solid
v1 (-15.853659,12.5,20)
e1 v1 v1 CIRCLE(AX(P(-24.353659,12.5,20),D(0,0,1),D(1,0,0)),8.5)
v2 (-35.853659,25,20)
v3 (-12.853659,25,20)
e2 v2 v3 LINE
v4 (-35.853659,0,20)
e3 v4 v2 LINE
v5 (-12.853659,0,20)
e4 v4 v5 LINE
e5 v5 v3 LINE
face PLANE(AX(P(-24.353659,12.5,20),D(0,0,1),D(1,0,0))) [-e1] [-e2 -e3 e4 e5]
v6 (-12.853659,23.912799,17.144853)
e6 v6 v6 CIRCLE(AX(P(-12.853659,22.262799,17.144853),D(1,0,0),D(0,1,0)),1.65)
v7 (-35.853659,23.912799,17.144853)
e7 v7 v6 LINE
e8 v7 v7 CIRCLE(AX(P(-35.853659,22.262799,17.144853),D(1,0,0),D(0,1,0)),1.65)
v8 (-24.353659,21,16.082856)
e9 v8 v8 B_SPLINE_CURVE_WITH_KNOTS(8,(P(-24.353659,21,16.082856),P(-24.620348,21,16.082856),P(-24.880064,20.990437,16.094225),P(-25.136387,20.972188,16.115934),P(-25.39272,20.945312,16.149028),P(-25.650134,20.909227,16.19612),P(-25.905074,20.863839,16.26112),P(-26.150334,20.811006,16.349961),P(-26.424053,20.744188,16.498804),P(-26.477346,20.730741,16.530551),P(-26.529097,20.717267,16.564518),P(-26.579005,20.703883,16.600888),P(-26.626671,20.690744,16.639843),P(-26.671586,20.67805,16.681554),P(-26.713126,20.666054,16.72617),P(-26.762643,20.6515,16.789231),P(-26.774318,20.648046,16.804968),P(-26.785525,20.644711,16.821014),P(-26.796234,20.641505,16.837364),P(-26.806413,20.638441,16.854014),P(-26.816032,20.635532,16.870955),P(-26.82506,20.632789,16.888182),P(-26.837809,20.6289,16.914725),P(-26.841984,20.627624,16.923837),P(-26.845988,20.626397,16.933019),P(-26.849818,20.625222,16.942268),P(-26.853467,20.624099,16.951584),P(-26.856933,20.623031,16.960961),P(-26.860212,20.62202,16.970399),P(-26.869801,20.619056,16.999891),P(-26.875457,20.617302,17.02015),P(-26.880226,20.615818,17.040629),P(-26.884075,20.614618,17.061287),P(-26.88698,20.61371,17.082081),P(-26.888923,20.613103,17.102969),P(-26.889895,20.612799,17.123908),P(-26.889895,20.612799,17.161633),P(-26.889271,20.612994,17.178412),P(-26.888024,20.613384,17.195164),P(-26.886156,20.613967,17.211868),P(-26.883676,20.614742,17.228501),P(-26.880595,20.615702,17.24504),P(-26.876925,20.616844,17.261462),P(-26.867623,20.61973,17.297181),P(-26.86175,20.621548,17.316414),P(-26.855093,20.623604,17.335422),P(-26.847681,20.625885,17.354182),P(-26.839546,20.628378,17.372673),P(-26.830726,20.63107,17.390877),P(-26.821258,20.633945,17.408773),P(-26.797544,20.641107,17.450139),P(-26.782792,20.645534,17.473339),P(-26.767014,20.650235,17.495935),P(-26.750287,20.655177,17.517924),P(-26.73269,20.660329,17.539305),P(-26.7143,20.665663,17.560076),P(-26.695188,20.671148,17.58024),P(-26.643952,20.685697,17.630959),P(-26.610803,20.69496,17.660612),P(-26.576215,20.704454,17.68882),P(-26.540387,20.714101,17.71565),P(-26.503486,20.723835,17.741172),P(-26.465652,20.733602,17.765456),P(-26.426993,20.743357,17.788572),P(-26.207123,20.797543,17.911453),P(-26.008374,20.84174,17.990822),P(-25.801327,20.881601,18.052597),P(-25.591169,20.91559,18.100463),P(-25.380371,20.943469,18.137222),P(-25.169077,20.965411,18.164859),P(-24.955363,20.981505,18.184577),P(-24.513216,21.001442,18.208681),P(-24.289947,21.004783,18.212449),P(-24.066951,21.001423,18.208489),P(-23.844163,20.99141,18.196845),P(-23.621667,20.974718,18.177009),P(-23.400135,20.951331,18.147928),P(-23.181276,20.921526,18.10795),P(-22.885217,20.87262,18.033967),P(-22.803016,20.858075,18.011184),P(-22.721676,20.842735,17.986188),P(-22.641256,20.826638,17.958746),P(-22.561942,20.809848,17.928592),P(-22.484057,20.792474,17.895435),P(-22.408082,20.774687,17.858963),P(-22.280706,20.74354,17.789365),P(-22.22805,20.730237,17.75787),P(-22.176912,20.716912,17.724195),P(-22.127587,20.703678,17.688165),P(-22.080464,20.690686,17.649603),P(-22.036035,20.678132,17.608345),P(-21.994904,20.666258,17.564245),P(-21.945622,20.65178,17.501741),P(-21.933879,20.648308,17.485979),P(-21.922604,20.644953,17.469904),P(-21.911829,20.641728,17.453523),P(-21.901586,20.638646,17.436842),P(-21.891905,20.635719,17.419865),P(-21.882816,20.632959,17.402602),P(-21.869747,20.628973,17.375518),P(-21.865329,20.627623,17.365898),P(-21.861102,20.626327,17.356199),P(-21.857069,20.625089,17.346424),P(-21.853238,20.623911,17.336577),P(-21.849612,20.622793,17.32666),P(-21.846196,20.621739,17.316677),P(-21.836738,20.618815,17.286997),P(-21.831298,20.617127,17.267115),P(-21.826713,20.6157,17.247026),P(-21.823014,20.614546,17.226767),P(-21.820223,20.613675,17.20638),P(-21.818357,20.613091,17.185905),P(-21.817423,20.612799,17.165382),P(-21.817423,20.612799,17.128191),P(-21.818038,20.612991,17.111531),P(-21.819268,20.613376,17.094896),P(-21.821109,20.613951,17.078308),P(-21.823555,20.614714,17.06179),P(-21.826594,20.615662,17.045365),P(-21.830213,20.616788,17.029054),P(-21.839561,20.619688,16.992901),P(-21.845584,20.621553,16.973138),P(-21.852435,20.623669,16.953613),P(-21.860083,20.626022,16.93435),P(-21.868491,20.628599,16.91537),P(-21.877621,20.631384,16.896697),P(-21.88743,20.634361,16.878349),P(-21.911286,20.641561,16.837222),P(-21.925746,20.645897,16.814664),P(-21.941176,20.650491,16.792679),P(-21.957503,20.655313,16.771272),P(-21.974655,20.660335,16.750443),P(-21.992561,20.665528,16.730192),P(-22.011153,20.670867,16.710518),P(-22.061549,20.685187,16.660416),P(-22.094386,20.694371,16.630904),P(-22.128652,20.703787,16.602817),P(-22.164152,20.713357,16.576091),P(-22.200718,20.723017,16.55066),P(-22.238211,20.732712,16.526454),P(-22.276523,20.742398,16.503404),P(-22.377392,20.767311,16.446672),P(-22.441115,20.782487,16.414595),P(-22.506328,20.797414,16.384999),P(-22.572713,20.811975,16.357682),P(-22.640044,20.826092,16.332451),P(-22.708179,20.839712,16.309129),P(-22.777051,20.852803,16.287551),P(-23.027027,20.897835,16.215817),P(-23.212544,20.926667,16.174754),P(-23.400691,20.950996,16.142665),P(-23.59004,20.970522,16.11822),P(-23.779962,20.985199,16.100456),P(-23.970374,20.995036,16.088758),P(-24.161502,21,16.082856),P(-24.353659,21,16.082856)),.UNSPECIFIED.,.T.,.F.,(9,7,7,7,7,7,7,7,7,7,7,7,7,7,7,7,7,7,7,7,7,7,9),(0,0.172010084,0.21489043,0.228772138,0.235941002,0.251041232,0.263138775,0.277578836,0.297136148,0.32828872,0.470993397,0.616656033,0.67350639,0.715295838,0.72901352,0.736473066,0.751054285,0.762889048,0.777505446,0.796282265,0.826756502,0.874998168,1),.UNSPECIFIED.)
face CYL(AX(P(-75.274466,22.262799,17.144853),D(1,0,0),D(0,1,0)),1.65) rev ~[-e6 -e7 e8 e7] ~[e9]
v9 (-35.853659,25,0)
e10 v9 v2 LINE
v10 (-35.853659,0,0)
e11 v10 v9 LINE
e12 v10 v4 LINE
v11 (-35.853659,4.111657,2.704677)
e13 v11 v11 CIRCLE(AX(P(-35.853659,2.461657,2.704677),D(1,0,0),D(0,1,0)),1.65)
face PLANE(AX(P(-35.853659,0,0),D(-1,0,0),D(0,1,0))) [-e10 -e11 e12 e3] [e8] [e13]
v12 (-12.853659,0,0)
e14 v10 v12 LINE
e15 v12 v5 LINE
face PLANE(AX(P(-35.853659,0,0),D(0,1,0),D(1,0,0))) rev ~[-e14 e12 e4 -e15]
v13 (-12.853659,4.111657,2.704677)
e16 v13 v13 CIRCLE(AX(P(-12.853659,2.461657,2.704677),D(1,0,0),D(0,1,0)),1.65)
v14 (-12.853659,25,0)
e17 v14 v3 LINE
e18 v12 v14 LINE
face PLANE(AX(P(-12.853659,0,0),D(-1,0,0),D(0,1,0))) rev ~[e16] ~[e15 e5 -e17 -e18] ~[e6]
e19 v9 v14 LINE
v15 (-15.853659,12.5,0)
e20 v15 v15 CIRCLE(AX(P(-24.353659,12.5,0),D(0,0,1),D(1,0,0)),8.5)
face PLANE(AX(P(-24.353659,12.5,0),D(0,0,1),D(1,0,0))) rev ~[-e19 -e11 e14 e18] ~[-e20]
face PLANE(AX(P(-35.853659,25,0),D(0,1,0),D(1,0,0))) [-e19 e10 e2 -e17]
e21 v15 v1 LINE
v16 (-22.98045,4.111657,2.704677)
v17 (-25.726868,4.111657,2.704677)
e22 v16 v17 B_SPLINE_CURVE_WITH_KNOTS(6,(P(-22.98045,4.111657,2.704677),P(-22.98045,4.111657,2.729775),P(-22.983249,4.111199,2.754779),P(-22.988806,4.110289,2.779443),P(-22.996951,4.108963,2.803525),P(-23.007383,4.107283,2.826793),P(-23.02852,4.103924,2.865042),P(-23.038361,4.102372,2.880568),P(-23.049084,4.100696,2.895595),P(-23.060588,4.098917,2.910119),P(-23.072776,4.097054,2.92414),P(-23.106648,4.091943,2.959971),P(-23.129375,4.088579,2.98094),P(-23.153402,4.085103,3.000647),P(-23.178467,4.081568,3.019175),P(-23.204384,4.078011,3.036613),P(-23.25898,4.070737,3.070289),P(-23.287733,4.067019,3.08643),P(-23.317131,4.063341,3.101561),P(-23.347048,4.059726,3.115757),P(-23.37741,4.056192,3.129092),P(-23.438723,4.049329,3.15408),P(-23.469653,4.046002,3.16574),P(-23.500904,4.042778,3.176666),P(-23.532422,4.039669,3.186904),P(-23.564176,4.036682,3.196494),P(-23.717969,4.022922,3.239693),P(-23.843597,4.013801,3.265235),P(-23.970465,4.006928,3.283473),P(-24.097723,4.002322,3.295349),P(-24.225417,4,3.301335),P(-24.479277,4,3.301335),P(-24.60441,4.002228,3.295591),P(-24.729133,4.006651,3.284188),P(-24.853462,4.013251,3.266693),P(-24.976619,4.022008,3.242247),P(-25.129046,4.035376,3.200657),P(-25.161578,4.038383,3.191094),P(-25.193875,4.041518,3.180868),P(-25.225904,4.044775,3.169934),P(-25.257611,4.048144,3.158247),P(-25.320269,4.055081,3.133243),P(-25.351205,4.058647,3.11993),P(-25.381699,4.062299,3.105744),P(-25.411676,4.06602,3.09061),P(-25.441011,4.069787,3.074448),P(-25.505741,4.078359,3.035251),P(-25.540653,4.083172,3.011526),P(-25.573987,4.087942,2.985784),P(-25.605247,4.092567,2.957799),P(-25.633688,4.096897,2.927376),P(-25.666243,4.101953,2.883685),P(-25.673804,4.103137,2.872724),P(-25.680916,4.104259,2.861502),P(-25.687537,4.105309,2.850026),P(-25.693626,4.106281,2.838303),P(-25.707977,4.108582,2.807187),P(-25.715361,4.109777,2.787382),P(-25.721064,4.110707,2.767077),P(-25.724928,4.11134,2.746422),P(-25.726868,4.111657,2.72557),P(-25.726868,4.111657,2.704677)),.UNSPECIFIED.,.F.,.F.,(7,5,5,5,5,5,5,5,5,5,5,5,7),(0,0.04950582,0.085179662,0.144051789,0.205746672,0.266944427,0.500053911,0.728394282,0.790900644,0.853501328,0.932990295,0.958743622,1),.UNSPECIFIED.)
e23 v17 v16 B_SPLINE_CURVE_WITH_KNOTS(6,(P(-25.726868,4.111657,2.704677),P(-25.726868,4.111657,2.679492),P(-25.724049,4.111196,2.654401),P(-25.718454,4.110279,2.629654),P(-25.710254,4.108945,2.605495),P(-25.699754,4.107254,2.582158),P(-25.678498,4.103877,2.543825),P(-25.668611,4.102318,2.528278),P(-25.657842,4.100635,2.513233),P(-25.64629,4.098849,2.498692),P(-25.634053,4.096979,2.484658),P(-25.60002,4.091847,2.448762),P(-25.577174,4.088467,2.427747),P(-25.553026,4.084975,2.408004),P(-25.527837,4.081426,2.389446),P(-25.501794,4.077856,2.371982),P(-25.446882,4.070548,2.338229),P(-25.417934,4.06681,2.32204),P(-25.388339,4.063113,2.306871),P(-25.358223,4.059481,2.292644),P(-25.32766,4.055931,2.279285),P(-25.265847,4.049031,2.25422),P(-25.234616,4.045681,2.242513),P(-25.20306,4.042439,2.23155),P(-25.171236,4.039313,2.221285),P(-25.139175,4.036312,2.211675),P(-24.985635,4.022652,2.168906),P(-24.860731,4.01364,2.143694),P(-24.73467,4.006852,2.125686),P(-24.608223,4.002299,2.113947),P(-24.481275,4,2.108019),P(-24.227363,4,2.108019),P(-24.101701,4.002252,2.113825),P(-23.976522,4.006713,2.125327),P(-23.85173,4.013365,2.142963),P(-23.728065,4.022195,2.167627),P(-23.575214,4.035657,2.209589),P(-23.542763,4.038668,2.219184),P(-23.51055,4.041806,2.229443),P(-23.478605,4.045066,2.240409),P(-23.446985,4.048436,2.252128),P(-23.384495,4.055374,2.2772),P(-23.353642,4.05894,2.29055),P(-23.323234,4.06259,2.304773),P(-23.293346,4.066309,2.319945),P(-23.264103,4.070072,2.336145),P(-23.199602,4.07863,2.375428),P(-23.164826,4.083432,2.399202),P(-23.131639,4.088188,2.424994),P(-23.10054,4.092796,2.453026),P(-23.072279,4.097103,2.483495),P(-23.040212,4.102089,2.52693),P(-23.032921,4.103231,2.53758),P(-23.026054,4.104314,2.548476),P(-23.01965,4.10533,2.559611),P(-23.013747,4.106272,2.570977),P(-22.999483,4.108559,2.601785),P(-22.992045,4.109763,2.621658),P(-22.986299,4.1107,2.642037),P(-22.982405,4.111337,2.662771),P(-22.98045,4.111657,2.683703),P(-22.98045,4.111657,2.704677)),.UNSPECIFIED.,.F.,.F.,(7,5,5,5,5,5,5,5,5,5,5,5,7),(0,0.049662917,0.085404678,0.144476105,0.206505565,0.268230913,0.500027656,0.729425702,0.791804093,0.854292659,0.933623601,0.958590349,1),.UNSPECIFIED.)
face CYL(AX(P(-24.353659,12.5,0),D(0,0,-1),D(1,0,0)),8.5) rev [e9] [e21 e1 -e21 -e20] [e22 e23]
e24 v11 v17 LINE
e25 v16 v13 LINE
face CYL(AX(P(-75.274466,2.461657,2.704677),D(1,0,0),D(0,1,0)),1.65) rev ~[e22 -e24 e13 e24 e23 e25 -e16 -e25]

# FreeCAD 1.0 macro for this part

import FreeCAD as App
import Part
import Sketcher

V = App.Vector

doc = App.newDocument("Part")
body = doc.addObject("PartDesign::Body", "Body")

# Sketch on XY plane
sketch1 = body.newObject("Sketcher::SketchObject", "Sketch")
sketch1.AttachmentSupport = (doc.getObject("XY_Plane"), [""])
sketch1.MapMode = "FlatFace"
sketch1.addGeometry([
    Part.LineSegment(V(-36, 25, 0), V(-36, 0, 0)),  # 0
    Part.LineSegment(V(-36, 0, 0), V(-13, 0, 0)),  # 1
    Part.LineSegment(V(-13, 0, 0), V(-13, 25, 0)),  # 2
    Part.LineSegment(V(-13, 25, 0), V(-36, 25, 0)),  # 3
    Part.Circle(V(-24, 12, 0), V(0, 0, 1), 8),  # 4
], False)
sketch1.addConstraint([
    Sketcher.Constraint("Coincident", 0, 2, 1, 1),
    Sketcher.Constraint("Coincident", 1, 2, 2, 1),
    Sketcher.Constraint("Coincident", 2, 2, 3, 1),
    Sketcher.Constraint("Coincident", 3, 2, 0, 1),
    Sketcher.Constraint("Vertical", 0),
    Sketcher.Constraint("Horizontal", 1),
    Sketcher.Constraint("Vertical", 2),
    Sketcher.Constraint("Horizontal", 3),
    Sketcher.Constraint("PointOnObject", 0, 2, -1),
    Sketcher.Constraint("Diameter", 4, 17.0),
    Sketcher.Constraint("DistanceX", 1, 1, 1, 2, 23.0),
    Sketcher.Constraint("DistanceY", 0, 2, 0, 1, 25.0),
    Sketcher.Constraint("DistanceY", -1, 1, 4, 3, 12.5),
    Sketcher.Constraint("DistanceX", 0, 2, 4, 3, 11.5),
    Sketcher.Constraint("DistanceX", 4, 3, -1, 1, 24.353659),
])
pad1 = body.newObject("PartDesign::Pad", "Pad")
pad1.Profile = sketch1
pad1.Length = 20

# Sketch on YZ plane
sketch2 = body.newObject("Sketcher::SketchObject", "Sketch001")
sketch2.AttachmentSupport = (doc.getObject("YZ_Plane"), [""])
sketch2.MapMode = "FlatFace"
sketch2.AttachmentOffset = App.Placement(V(0, 0, -35.853659), App.Rotation())
sketch2.addGeometry([
    Part.Circle(V(2.5, 2.7, 0), V(0, 0, 1), 1.6),
    Part.Circle(V(22.3, 17.1, 0), V(0, 0, 1), 1.6),
    Part.Circle(V(22.3, 17.1, 0), V(0, 0, 1), 1.6),
], False)
sketch2.addConstraint([
    Sketcher.Constraint("Coincident", 2, 3, 1, 3),
    Sketcher.Constraint("Equal", 0, 1),
    Sketcher.Constraint("Equal", 1, 2),
    Sketcher.Constraint("Diameter", 0, 3.3),
    Sketcher.Constraint("DistanceX", -1, 1, 1, 3, 22.262799),
    Sketcher.Constraint("DistanceX", -1, 1, 0, 3, 2.461657),
    Sketcher.Constraint("DistanceY", -1, 1, 0, 3, 2.704677),
    Sketcher.Constraint("DistanceY", -1, 1, 1, 3, 17.144853),
])
doc.recompute()
hole = body.newObject("PartDesign::Hole", "Hole")
hole.Profile = sketch2
hole.ThreadType = "None"
hole.Diameter = 3.3
hole.DepthType = "ThroughAll"
hole.Reversed = True

doc.recompute()
